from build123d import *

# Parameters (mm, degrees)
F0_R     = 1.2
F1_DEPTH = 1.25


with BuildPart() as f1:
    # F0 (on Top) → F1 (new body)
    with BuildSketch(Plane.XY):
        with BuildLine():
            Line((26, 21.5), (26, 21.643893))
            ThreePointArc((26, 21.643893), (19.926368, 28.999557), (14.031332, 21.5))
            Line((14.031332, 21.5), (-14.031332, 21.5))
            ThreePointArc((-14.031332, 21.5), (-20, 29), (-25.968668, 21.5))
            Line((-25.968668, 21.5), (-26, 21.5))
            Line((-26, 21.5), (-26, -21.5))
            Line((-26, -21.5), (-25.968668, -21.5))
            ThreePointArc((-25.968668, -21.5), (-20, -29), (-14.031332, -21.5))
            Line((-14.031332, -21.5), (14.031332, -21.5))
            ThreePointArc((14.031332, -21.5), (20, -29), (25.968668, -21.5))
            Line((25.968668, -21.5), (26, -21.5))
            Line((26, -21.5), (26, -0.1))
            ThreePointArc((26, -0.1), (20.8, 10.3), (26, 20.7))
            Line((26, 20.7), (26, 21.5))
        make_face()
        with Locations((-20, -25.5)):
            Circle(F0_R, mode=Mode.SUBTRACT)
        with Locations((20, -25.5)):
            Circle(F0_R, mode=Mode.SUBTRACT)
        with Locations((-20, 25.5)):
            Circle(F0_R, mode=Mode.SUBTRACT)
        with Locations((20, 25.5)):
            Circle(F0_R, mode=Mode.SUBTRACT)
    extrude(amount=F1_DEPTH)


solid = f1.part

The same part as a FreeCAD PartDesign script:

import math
import FreeCAD as App
import Part
import Sketcher
Q = App.Units.Quantity

doc = App.newDocument("Part")
body = doc.addObject("PartDesign::Body", "Body")

sketch1 = body.newObject("Sketcher::SketchObject", "Sketch")
sketch1.AttachmentSupport = (doc.getObject("XY_Plane"), [""])
sketch1.MapMode = "FlatFace"
sketch1.addGeometry(Part.ArcOfCircle(Part.Circle(App.Vector(20, 22.875, 0), App.Vector(0, 0, 1), 6.125), math.radians(-12), math.radians(193)), False)
sketch1.addGeometry(Part.LineSegment(App.Vector(14.031, 21.5, 0), App.Vector(-14.031, 21.5, 0)), False)
sketch1.addGeometry(Part.ArcOfCircle(Part.Circle(App.Vector(-20, 22.875, 0), App.Vector(0, 0, 1), 6.125), math.radians(-13), math.radians(193)), False)
sketch1.addGeometry(Part.LineSegment(App.Vector(-25.969, 21.5, 0), App.Vector(-26, 21.5, 0)), False)
sketch1.addGeometry(Part.LineSegment(App.Vector(-26, 21.5, 0), App.Vector(-26, -21.5, 0)), False)
sketch1.addGeometry(Part.LineSegment(App.Vector(-26, -21.5, 0), App.Vector(-25.969, -21.5, 0)), False)
sketch1.addGeometry(Part.ArcOfCircle(Part.Circle(App.Vector(-20, -22.875, 0), App.Vector(0, 0, 1), 6.125), math.radians(167), math.radians(373)), False)
sketch1.addGeometry(Part.LineSegment(App.Vector(-14.031, -21.5, 0), App.Vector(14.031, -21.5, 0)), False)
sketch1.addGeometry(Part.ArcOfCircle(Part.Circle(App.Vector(20, -22.875, 0), App.Vector(0, 0, 1), 6.125), math.radians(167), math.radians(373)), False)
sketch1.addGeometry(Part.LineSegment(App.Vector(25.969, -21.5, 0), App.Vector(26, -21.5, 0)), False)
sketch1.addGeometry(Part.LineSegment(App.Vector(26, -21.5, 0), App.Vector(26, -0.1, 0)), False)
sketch1.addGeometry(Part.ArcOfCircle(Part.Circle(App.Vector(33.8, 10.3, 0), App.Vector(0, 0, 1), 13), math.radians(127), math.radians(233)), False)
sketch1.addGeometry(Part.LineSegment(App.Vector(26, 20.7, 0), App.Vector(26, 21.644, 0)), False)
sketch1.addGeometry(Part.Circle(App.Vector(-20, -25.5, 0), App.Vector(0, 0, 1), 1.2), False)
sketch1.addGeometry(Part.Circle(App.Vector(20, -25.5, 0), App.Vector(0, 0, 1), 1.2), False)
sketch1.addGeometry(Part.Circle(App.Vector(-20, 25.5, 0), App.Vector(0, 0, 1), 1.2), False)
sketch1.addGeometry(Part.Circle(App.Vector(20, 25.5, 0), App.Vector(0, 0, 1), 1.2), False)
sketch1.addConstraint(Sketcher.Constraint("Coincident", 0, 2, 1, 1))
sketch1.addConstraint(Sketcher.Constraint("Coincident", 1, 2, 2, 1))
sketch1.addConstraint(Sketcher.Constraint("Coincident", 2, 2, 3, 1))
sketch1.addConstraint(Sketcher.Constraint("Coincident", 3, 2, 4, 1))
sketch1.addConstraint(Sketcher.Constraint("Coincident", 4, 2, 5, 1))
sketch1.addConstraint(Sketcher.Constraint("Coincident", 5, 2, 6, 1))
sketch1.addConstraint(Sketcher.Constraint("Coincident", 6, 2, 7, 1))
sketch1.addConstraint(Sketcher.Constraint("Coincident", 7, 2, 8, 1))
sketch1.addConstraint(Sketcher.Constraint("Coincident", 8, 2, 9, 1))
sketch1.addConstraint(Sketcher.Constraint("Coincident", 9, 2, 10, 1))
sketch1.addConstraint(Sketcher.Constraint("Coincident", 10, 2, 11, 2))
sketch1.addConstraint(Sketcher.Constraint("Coincident", 11, 1, 12, 1))
sketch1.addConstraint(Sketcher.Constraint("Coincident", 12, 2, 0, 1))
sketch1.addConstraint(Sketcher.Constraint("Horizontal", 1))
sketch1.addConstraint(Sketcher.Constraint("Horizontal", 3))
sketch1.addConstraint(Sketcher.Constraint("Vertical", 4))
sketch1.addConstraint(Sketcher.Constraint("Horizontal", 5))
sketch1.addConstraint(Sketcher.Constraint("Horizontal", 7))
sketch1.addConstraint(Sketcher.Constraint("Horizontal", 9))
sketch1.addConstraint(Sketcher.Constraint("Vertical", 10))
sketch1.addConstraint(Sketcher.Constraint("Vertical", 12))
sketch1.addConstraint(Sketcher.Constraint("Equal", 0, 2))
sketch1.addConstraint(Sketcher.Constraint("Equal", 2, 6))
sketch1.addConstraint(Sketcher.Constraint("Equal", 6, 8))
sketch1.addConstraint(Sketcher.Constraint("Equal", 13, 14))
sketch1.addConstraint(Sketcher.Constraint("Equal", 14, 15))
sketch1.addConstraint(Sketcher.Constraint("Equal", 15, 16))
sketch1.addConstraint(Sketcher.Constraint("Symmetric", 0, 3, 6, 3, -1, 1))
sketch1.addConstraint(Sketcher.Constraint("Symmetric", 2, 3, 8, 3, -1, 1))
sketch1.addConstraint(Sketcher.Constraint("Symmetric", 14, 3, 15, 3, -1, 1))
sketch1.addConstraint(Sketcher.Constraint("Symmetric", 13, 3, 16, 3, -1, 1))
sketch1.addConstraint(Sketcher.Constraint("Symmetric", 3, 2, 9, 2, -1, 1))
sketch1.addConstraint(Sketcher.Constraint("Symmetric", 0, 3, 2, 3, -2))
sketch1.addConstraint(Sketcher.Constraint("Symmetric", 13, 3, 14, 3, -2))
sketch1.addConstraint(Sketcher.Constraint("Horizontal", 1, 2, 2, 2))
sketch1.addConstraint(Sketcher.Constraint("Horizontal", 5, 2, 6, 2))
sketch1.addConstraint(Sketcher.Constraint("Horizontal", 7, 2, 8, 2))
sketch1.addConstraint(Sketcher.Constraint("Vertical", 6, 3, 13, 3))
sketch1.addConstraint(Sketcher.Constraint("Vertical", 10, 2, 11, 1))
sketch1.addConstraint(Sketcher.Constraint("Radius", 11, Q("13 mm")))
sketch1.addConstraint(Sketcher.Constraint("Diameter", 13, Q("2.4 mm")))
sketch1.addConstraint(Sketcher.Constraint("DistanceY", 4, 2, 4, 1, Q("43 mm")))
sketch1.addConstraint(Sketcher.Constraint("DistanceY", 10, 1, 10, 2, Q("21.4 mm")))
sketch1.addConstraint(Sketcher.Constraint("DistanceX", -1, 1, 0, 3, Q("20 mm")))
sketch1.addConstraint(Sketcher.Constraint("DistanceX", 3, 2, -1, 1, Q("26 mm")))
sketch1.addConstraint(Sketcher.Constraint("Radius", 0, Q("6.125 mm")))
sketch1.addConstraint(Sketcher.Constraint("DistanceY", 13, 3, 15, 3, Q("51 mm")))
sketch1.addConstraint(Sketcher.Constraint("DistanceX", -1, 1, 11, 3, Q("33.8 mm")))
sketch1.addConstraint(Sketcher.Constraint("DistanceY", 6, 3, 2, 3, Q("45.75 mm")))
pad1 = body.newObject("PartDesign::Pad", "Pad")
pad1.Profile = sketch1
pad1.Length = 1.25

doc.recompute()
